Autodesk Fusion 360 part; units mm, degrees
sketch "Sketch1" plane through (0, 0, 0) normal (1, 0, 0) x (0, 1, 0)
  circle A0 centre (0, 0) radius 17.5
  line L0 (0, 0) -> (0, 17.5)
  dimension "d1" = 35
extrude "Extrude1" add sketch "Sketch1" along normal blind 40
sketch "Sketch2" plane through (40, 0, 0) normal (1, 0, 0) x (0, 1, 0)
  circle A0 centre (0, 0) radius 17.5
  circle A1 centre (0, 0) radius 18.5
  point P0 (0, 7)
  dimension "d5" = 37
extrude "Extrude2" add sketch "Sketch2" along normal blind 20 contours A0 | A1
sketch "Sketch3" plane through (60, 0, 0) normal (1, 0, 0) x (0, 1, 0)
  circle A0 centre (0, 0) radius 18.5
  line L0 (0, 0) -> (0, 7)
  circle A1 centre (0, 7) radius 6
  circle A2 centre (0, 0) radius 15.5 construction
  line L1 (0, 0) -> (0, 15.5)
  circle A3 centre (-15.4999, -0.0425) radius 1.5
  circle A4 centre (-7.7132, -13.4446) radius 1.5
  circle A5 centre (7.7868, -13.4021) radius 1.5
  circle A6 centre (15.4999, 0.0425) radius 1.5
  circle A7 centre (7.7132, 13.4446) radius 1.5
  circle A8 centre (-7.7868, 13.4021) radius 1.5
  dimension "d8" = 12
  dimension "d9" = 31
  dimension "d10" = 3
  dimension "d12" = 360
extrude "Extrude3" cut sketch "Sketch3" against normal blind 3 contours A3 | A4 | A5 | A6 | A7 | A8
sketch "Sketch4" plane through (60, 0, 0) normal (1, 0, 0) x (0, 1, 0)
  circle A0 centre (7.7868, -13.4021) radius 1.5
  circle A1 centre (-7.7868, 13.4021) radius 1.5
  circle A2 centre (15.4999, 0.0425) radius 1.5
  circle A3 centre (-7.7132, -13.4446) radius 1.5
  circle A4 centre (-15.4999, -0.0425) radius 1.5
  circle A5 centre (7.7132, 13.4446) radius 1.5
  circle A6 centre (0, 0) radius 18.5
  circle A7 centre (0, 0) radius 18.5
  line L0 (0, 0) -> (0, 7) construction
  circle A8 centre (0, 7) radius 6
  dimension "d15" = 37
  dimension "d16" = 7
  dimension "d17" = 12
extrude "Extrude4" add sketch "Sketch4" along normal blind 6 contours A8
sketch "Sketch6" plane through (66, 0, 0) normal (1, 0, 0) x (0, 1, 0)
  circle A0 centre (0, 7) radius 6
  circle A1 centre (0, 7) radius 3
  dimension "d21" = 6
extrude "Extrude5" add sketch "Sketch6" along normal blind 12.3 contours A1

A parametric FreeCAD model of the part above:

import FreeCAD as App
import Part
import Sketcher
Q = App.Units.Quantity

doc = App.newDocument("Part")
body = doc.addObject("PartDesign::Body", "Body")

# Sketch on YZ plane
sketch1 = body.newObject("Sketcher::SketchObject", "Sketch")
sketch1.AttachmentSupport = (doc.getObject("YZ_Plane"), [""])
sketch1.MapMode = "FlatFace"
sketch1.addGeometry(Part.Circle(App.Vector(0, 0, 0), App.Vector(0, 0, 1), 17.5), False)
sketch1.addConstraint([
    Sketcher.Constraint("Coincident", 0, 3, -1, 1),
    Sketcher.Constraint("Diameter", 0, Q("35 mm")),
])
pad1 = body.newObject("PartDesign::Pad", "Pad")
pad1.Profile = sketch1
pad1.Length = 40

# Sketch on YZ plane
sketch2 = body.newObject("Sketcher::SketchObject", "Sketch001")
sketch2.AttachmentSupport = (doc.getObject("YZ_Plane"), [""])
sketch2.MapMode = "FlatFace"
sketch2.AttachmentOffset = App.Placement(App.Vector(0, 0, 40), App.Rotation())
sketch2.addGeometry(Part.Circle(App.Vector(0, 0, 0), App.Vector(0, 0, 1), 18.5), False)
sketch2.addConstraint([
    Sketcher.Constraint("Coincident", 0, 3, -1, 1),
    Sketcher.Constraint("Diameter", 0, Q("37 mm")),
])
pad2 = body.newObject("PartDesign::Pad", "Pad001")
pad2.Profile = sketch2
pad2.Length = 20

# Sketch on YZ plane
sketch3 = body.newObject("Sketcher::SketchObject", "Sketch002")
sketch3.AttachmentSupport = (doc.getObject("YZ_Plane"), [""])
sketch3.MapMode = "FlatFace"
sketch3.AttachmentOffset = App.Placement(App.Vector(0, 0, 60), App.Rotation())
sketch3.addGeometry([
    Part.Circle(App.Vector(-15.4999, -0.0425, 0), App.Vector(0, 0, 1), 1.5),  # 0
    Part.Circle(App.Vector(-7.7132, -13.4446, 0), App.Vector(0, 0, 1), 1.5),  # 1
    Part.Circle(App.Vector(7.7868, -13.4021, 0), App.Vector(0, 0, 1), 1.5),  # 2
    Part.Circle(App.Vector(15.4999, 0.0425, 0), App.Vector(0, 0, 1), 1.5),  # 3
    Part.Circle(App.Vector(7.7132, 13.4446, 0), App.Vector(0, 0, 1), 1.5),  # 4
    Part.Circle(App.Vector(-7.7868, 13.4021, 0), App.Vector(0, 0, 1), 1.5),  # 5
], False)
sketch3.addConstraint([
    Sketcher.Constraint("Equal", 0, 1),
    Sketcher.Constraint("Equal", 1, 2),
    Sketcher.Constraint("Equal", 2, 3),
    Sketcher.Constraint("Equal", 3, 4),
    Sketcher.Constraint("Equal", 4, 5),
    Sketcher.Constraint("Symmetric", 0, 3, 3, 3, -1, 1),
    Sketcher.Constraint("Symmetric", 1, 3, 4, 3, -1, 1),
    Sketcher.Constraint("Symmetric", 2, 3, 5, 3, -1, 1),
    Sketcher.Constraint("Diameter", 0, Q("3 mm")),
    Sketcher.Constraint("DistanceX", 0, 3, -1, 1, Q("15.5 mm")),
    Sketcher.Constraint("DistanceX", 1, 3, 2, 3, Q("15.5 mm")),
    Sketcher.Constraint("DistanceY", 2, 3, -1, 1, Q("13.402 mm")),
    Sketcher.Constraint("DistanceY", 1, 3, 0, 3, Q("13.402 mm")),
    Sketcher.Constraint("DistanceX", 2, 3, 3, 3, Q("7.713 mm")),
    Sketcher.Constraint("DistanceY", 1, 3, 3, 3, Q("13.487 mm")),
])
pocket1 = body.newObject("PartDesign::Pocket", "Pocket")
pocket1.Profile = sketch3
pocket1.Length = 3

# Sketch on YZ plane
sketch4 = body.newObject("Sketcher::SketchObject", "Sketch003")
sketch4.AttachmentSupport = (doc.getObject("YZ_Plane"), [""])
sketch4.MapMode = "FlatFace"
sketch4.AttachmentOffset = App.Placement(App.Vector(0, 0, 60), App.Rotation())
sketch4.addGeometry(Part.Circle(App.Vector(0, 7, 0), App.Vector(0, 0, 1), 6), False)
sketch4.addConstraint([
    Sketcher.Constraint("PointOnObject", 0, 3, -2),
    Sketcher.Constraint("Diameter", 0, Q("12 mm")),
    Sketcher.Constraint("DistanceY", -1, 1, 0, 3, Q("7 mm")),
])
pad3 = body.newObject("PartDesign::Pad", "Pad002")
pad3.Profile = sketch4
pad3.Length = 6

# Sketch on YZ plane
sketch5 = body.newObject("Sketcher::SketchObject", "Sketch004")
sketch5.AttachmentSupport = (doc.getObject("YZ_Plane"), [""])
sketch5.MapMode = "FlatFace"
sketch5.AttachmentOffset = App.Placement(App.Vector(0, 0, 66), App.Rotation())
sketch5.addGeometry(Part.Circle(App.Vector(0, 7, 0), App.Vector(0, 0, 1), 3), False)
sketch5.addConstraint([
    Sketcher.Constraint("PointOnObject", 0, 3, -2),
    Sketcher.Constraint("Diameter", 0, Q("6 mm")),
    Sketcher.Constraint("DistanceY", -1, 1, 0, 3, Q("7 mm")),
])
pad4 = body.newObject("PartDesign::Pad", "Pad003")
pad4.Profile = sketch5
pad4.Length = 12.3

doc.recompute()
